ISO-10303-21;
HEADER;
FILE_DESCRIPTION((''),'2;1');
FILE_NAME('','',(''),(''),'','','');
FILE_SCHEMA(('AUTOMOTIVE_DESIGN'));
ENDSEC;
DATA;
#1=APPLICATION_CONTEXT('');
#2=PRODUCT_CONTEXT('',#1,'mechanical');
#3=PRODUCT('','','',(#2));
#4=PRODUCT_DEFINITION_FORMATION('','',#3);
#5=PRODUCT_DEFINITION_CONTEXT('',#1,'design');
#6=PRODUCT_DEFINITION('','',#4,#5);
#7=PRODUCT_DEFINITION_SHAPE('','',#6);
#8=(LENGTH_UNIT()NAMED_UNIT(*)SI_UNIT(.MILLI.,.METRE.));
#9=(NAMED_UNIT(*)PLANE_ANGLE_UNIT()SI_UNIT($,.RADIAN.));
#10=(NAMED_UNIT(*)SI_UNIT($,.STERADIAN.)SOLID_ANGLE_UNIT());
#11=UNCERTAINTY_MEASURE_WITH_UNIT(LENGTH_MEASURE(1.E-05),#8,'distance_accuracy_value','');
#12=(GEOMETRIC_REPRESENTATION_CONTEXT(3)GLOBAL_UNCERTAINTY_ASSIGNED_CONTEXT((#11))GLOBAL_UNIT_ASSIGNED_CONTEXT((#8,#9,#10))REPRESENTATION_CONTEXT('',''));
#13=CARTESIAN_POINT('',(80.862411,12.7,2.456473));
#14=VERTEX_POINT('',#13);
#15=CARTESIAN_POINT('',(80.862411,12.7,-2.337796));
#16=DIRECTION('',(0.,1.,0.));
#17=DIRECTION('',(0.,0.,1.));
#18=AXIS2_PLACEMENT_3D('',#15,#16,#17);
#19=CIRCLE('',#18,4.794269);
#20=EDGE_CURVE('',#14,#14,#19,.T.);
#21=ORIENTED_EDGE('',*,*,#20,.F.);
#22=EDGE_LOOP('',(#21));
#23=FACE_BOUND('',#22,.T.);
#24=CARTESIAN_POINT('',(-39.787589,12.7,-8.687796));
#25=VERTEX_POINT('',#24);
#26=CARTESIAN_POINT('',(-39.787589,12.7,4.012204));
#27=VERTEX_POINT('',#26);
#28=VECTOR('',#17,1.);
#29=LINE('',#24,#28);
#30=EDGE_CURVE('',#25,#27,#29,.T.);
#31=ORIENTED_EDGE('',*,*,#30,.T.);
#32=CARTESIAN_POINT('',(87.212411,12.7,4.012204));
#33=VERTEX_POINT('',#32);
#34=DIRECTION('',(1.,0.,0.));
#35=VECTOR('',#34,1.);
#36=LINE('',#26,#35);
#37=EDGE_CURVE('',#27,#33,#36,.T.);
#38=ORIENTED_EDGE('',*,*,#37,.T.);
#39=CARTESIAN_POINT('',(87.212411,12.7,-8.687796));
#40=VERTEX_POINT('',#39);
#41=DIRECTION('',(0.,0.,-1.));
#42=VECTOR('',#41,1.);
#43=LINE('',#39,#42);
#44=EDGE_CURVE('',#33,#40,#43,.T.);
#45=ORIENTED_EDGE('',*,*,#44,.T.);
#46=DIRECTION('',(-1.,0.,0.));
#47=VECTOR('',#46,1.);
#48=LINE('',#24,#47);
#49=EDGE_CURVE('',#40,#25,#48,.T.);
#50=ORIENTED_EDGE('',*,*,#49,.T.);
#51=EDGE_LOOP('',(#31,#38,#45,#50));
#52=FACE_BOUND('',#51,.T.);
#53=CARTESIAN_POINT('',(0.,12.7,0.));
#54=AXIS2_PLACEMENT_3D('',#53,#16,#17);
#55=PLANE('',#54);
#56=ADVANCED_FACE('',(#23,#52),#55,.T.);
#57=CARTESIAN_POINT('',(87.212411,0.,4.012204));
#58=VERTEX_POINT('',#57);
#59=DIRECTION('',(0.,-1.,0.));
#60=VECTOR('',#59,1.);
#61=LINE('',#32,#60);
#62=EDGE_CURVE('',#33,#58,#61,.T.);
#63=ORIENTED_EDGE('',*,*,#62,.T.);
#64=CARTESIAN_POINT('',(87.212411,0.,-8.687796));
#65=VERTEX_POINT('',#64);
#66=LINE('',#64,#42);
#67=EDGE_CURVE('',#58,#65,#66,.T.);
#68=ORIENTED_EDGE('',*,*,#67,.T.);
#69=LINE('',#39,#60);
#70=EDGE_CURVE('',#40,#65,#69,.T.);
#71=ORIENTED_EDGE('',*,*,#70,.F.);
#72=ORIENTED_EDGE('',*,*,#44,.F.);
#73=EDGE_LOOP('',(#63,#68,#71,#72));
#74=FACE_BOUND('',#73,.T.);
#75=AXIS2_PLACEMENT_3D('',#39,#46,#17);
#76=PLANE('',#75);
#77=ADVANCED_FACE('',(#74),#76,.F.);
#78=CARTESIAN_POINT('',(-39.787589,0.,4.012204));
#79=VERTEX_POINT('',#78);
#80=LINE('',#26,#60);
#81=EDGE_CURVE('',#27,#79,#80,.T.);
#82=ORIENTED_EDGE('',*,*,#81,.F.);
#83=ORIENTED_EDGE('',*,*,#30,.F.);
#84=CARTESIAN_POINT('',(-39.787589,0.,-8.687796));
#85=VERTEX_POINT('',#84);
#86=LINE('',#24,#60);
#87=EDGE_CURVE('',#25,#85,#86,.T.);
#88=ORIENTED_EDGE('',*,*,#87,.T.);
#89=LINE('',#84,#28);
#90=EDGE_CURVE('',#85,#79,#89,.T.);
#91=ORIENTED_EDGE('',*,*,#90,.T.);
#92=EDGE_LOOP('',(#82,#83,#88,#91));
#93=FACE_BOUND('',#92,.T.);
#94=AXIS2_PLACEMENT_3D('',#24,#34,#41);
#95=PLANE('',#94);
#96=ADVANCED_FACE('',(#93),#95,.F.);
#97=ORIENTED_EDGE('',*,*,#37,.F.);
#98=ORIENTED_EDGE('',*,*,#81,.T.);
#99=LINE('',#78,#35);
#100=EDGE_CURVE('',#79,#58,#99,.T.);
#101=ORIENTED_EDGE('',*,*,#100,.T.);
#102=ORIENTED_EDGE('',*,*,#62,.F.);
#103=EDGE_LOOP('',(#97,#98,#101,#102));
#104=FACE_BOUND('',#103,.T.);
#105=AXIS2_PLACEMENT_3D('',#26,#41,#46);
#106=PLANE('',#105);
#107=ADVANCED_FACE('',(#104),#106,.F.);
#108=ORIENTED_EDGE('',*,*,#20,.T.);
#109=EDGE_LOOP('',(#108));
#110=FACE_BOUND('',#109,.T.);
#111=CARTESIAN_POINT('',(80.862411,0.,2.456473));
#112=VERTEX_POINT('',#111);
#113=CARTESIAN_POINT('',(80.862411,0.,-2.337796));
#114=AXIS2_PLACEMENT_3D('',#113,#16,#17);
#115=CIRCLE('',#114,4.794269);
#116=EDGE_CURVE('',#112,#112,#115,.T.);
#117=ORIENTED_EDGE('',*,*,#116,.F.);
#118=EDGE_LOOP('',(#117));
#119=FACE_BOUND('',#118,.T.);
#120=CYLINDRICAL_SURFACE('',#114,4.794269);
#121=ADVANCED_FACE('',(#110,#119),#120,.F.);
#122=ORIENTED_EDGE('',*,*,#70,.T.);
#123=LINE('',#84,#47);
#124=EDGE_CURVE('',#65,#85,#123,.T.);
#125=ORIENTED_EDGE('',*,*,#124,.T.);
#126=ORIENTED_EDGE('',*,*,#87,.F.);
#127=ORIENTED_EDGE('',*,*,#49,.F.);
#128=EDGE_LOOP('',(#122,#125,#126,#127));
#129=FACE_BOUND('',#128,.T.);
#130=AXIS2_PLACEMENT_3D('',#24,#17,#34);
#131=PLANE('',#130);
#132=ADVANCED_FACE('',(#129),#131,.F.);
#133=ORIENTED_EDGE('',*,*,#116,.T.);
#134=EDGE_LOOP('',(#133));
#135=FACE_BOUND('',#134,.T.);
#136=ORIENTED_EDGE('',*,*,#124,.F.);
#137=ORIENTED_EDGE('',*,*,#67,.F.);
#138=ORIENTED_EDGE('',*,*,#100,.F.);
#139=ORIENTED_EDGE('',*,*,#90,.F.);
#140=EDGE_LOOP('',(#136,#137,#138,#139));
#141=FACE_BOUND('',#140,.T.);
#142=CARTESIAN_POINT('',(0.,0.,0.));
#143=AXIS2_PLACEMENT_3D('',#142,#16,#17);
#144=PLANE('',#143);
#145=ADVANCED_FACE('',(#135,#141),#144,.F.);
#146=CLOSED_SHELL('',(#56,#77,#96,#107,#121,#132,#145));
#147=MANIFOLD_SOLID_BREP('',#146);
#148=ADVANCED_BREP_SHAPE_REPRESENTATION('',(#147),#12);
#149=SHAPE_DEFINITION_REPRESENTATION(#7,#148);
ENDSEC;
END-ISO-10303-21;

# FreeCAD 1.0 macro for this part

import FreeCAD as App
import Part
import Sketcher

V = App.Vector
Q = App.Units.Quantity

doc = App.newDocument("Part")
params = doc.addObject("Spreadsheet::Sheet", "Params")
for row, (alias, value) in enumerate([
    ("sketch1_width", "5 in"),
    ("sketch1_height", "0.5 in"),
    ("pad1_length", "0.5 in"),
    ("pocket1_length", "0.5 in"),
], start=1):
    params.set(f"A{row}", alias)
    params.set(f"B{row}", "=" + value)
    params.setAlias(f"B{row}", alias)

body = doc.addObject("PartDesign::Body", "Body")

# Sketch on XZ plane
sketch1 = body.newObject("Sketcher::SketchObject", "Sketch")
sketch1.AttachmentSupport = (doc.getObject("XZ_Plane"), [""])
sketch1.MapMode = "FlatFace"
sketch1.addGeometry([
    Part.LineSegment(V(-39.787589, -8.687796, 0), V(-39.787589, 4.012204, 0)),
    Part.LineSegment(V(-39.787589, 4.012204, 0), V(87.212411, 4.012204, 0)),
    Part.LineSegment(V(87.212411, 4.012204, 0), V(87.212411, -8.687796, 0)),
    Part.LineSegment(V(87.212411, -8.687796, 0), V(-39.787589, -8.687796, 0)),
], False)
sketch1.addConstraint([
    Sketcher.Constraint("Coincident", 0, 2, 1, 1),
    Sketcher.Constraint("Coincident", 1, 2, 2, 1),
    Sketcher.Constraint("Coincident", 2, 2, 3, 1),
    Sketcher.Constraint("Coincident", 3, 2, 0, 1),
    Sketcher.Constraint("Vertical", 0),
    Sketcher.Constraint("Horizontal", 1),
    Sketcher.Constraint("Vertical", 2),
    Sketcher.Constraint("Horizontal", 3),
    Sketcher.Constraint("DistanceX", 1, 1, 1, 2, Q("5 in")),
    Sketcher.Constraint("DistanceY", 0, 1, 0, 2, Q("0.5 in")),
    Sketcher.Constraint("DistanceX", 0, 2, -1, 1, 39.787589),
    Sketcher.Constraint("DistanceY", -1, 1, 0, 2, 4.012204),
])
sketch1.setExpression("Constraints[8]", "Params.sketch1_width")
sketch1.setExpression("Constraints[9]", "Params.sketch1_height")
pad1 = body.newObject("PartDesign::Pad", "Pad")
pad1.Profile = sketch1
pad1.setExpression("Length", "Params.pad1_length")
pad1.Reversed = True

# Sketch on XZ plane
sketch2 = body.newObject("Sketcher::SketchObject", "Sketch001")
sketch2.AttachmentSupport = (doc.getObject("XZ_Plane"), [""])
sketch2.MapMode = "FlatFace"
sketch2.AttachmentOffset = App.Placement(V(0, 0, -0.5 * 25.4), App.Rotation())
sketch2.addGeometry(Part.Circle(V(80.862411, -2.337796, 0), V(0, 0, 1), 4.794269), False)
sketch2.addConstraint([
    Sketcher.Constraint("Diameter", 0, 9.588538),
    Sketcher.Constraint("DistanceX", -1, 1, 0, 3, 80.862411),
    Sketcher.Constraint("DistanceY", 0, 3, -1, 1, 2.337796),
])
pocket1 = body.newObject("PartDesign::Pocket", "Pocket")
pocket1.Profile = sketch2
pocket1.setExpression("Length", "Params.pocket1_length")
pocket1.Reversed = True

doc.recompute()
